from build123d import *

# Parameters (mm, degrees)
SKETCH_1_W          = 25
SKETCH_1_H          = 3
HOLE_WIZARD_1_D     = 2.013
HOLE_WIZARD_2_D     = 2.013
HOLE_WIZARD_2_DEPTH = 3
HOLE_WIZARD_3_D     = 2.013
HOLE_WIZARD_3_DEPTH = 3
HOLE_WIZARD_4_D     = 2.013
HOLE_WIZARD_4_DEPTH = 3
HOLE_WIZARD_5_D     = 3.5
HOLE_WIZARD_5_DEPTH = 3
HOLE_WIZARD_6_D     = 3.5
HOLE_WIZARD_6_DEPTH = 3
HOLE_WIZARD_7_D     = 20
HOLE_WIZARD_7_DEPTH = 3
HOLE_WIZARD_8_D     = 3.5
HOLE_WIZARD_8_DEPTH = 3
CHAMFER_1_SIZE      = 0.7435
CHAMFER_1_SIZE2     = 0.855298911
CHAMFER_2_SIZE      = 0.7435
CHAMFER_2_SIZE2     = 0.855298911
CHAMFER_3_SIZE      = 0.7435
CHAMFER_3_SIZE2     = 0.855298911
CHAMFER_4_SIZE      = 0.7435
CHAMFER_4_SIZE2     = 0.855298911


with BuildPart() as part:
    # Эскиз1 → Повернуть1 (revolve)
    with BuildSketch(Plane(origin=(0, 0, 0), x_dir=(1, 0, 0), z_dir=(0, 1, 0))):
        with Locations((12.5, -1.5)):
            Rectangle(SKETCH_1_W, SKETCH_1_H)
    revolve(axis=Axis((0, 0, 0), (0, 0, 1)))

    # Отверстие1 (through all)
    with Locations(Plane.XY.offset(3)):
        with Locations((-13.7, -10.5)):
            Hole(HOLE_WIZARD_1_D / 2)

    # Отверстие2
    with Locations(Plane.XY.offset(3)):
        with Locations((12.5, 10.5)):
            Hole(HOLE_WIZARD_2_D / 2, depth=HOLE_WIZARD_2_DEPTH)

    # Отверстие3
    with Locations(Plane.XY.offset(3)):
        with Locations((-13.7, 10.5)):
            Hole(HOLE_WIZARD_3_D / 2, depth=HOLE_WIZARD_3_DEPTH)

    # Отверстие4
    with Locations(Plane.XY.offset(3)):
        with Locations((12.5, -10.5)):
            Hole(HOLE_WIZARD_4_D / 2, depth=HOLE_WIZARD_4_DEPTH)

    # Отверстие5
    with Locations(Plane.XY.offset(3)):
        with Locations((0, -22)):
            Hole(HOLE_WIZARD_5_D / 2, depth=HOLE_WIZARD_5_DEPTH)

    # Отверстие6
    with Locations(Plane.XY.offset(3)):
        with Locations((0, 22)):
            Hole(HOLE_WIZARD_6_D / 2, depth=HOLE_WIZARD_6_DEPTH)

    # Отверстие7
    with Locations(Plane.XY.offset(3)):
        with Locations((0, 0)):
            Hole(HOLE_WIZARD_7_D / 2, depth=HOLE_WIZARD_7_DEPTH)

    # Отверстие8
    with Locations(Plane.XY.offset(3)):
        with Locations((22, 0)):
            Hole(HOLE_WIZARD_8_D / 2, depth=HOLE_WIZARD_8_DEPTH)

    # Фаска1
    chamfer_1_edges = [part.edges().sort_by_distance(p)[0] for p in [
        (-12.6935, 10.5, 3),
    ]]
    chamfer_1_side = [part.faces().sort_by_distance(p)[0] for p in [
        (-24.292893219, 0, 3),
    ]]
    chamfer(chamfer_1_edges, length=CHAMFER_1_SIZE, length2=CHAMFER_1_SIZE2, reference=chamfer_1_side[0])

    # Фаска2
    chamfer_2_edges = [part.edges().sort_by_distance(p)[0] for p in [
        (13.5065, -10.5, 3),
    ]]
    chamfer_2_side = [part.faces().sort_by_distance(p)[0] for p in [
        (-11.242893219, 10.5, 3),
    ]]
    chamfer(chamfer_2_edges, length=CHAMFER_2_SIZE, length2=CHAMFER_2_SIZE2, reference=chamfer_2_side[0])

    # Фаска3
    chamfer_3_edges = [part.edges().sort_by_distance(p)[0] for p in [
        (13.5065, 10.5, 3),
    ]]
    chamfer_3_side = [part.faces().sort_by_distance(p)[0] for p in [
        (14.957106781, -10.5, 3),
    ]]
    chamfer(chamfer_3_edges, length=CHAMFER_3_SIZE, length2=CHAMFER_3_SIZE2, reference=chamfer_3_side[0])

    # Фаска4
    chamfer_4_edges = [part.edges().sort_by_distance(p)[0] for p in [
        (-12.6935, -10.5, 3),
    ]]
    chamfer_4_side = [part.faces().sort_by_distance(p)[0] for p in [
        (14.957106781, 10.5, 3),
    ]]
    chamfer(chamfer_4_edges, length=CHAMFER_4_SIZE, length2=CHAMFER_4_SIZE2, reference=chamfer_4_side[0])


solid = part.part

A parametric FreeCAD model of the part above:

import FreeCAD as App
import Part
import Sketcher

V = App.Vector
Q = App.Units.Quantity


def edges_at(feature, points):
    """Names of the edges that pass closest to the given points."""
    edges = feature.Shape.Edges
    near = lambda p: min(range(len(edges)), key=lambda i: edges[i].distToShape(Part.Vertex(*p))[0])
    return sorted({f"Edge{near(p) + 1}" for p in points})

doc = App.newDocument("Part")
body = doc.addObject("PartDesign::Body", "Body")

sketch1 = body.newObject("Sketcher::SketchObject", "Sketch")
sketch1.AttachmentSupport = (doc.getObject("XZ_Plane"), [""])
sketch1.MapMode = "FlatFace"
sketch1.addGeometry(Part.LineSegment(V(0, 0, 0), V(0, 3, 0)), False)
sketch1.addGeometry(Part.LineSegment(V(0, 3, 0), V(25, 3, 0)), False)
sketch1.addGeometry(Part.LineSegment(V(25, 3, 0), V(25, 0, 0)), False)
sketch1.addGeometry(Part.LineSegment(V(25, 0, 0), V(0, 0, 0)), False)
sketch1.addConstraint(Sketcher.Constraint("Coincident", 0, 2, 1, 1))
sketch1.addConstraint(Sketcher.Constraint("Coincident", 1, 2, 2, 1))
sketch1.addConstraint(Sketcher.Constraint("Coincident", 2, 2, 3, 1))
sketch1.addConstraint(Sketcher.Constraint("Coincident", 3, 2, 0, 1))
sketch1.addConstraint(Sketcher.Constraint("Vertical", 0))
sketch1.addConstraint(Sketcher.Constraint("Horizontal", 1))
sketch1.addConstraint(Sketcher.Constraint("Vertical", 2))
sketch1.addConstraint(Sketcher.Constraint("Horizontal", 3))
sketch1.addConstraint(Sketcher.Constraint("Coincident", 3, 2, -1, 1))
sketch1.addConstraint(Sketcher.Constraint("DistanceX", 1, 1, 1, 2, Q("25 mm")))
sketch1.addConstraint(Sketcher.Constraint("DistanceY", 0, 1, 0, 2, Q("3 mm")))
revolution = body.newObject("PartDesign::Revolution", "Revolution")
revolution.Profile = sketch1
revolution.ReferenceAxis = (sketch1, ["V_Axis"])
revolution.Angle = 360

sketch2 = body.newObject("Sketcher::SketchObject", "Sketch001")
sketch2.AttachmentSupport = (doc.getObject("XY_Plane"), [""])
sketch2.MapMode = "FlatFace"
sketch2.AttachmentOffset = App.Placement(V(0, 0, 3), App.Rotation())
sketch2.addGeometry(Part.Circle(V(-13.7, -10.5, 0), V(0, 0, 1), 1), False)
sketch2.addConstraint(Sketcher.Constraint("Diameter", 0, Q("2.013 mm")))
sketch2.addConstraint(Sketcher.Constraint("DistanceX", 0, 3, -1, 1, Q("13.7 mm")))
sketch2.addConstraint(Sketcher.Constraint("DistanceY", 0, 3, -1, 1, Q("10.5 mm")))
doc.recompute()
hole = body.newObject("PartDesign::Hole", "Hole")
hole.Profile = sketch2
hole.ThreadType = "None"
hole.Diameter = 2.013
hole.DepthType = "ThroughAll"

sketch3 = body.newObject("Sketcher::SketchObject", "Sketch002")
sketch3.AttachmentSupport = (doc.getObject("XY_Plane"), [""])
sketch3.MapMode = "FlatFace"
sketch3.AttachmentOffset = App.Placement(V(0, 0, 3), App.Rotation())
sketch3.addGeometry(Part.Circle(V(12.5, 10.5, 0), V(0, 0, 1), 1), False)
sketch3.addConstraint(Sketcher.Constraint("Diameter", 0, Q("2.013 mm")))
sketch3.addConstraint(Sketcher.Constraint("DistanceX", -1, 1, 0, 3, Q("12.5 mm")))
sketch3.addConstraint(Sketcher.Constraint("DistanceY", -1, 1, 0, 3, Q("10.5 mm")))
doc.recompute()
hole2 = body.newObject("PartDesign::Hole", "Hole001")
hole2.Profile = sketch3
hole2.ThreadType = "None"
hole2.Diameter = 2.013
hole2.DepthType = "Dimension"
hole2.Depth = 3
hole2.DrillPoint = "Flat"

sketch4 = body.newObject("Sketcher::SketchObject", "Sketch003")
sketch4.AttachmentSupport = (doc.getObject("XY_Plane"), [""])
sketch4.MapMode = "FlatFace"
sketch4.AttachmentOffset = App.Placement(V(0, 0, 3), App.Rotation())
sketch4.addGeometry(Part.Circle(V(-13.7, 10.5, 0), V(0, 0, 1), 1), False)
sketch4.addConstraint(Sketcher.Constraint("Diameter", 0, Q("2.013 mm")))
sketch4.addConstraint(Sketcher.Constraint("DistanceX", 0, 3, -1, 1, Q("13.7 mm")))
sketch4.addConstraint(Sketcher.Constraint("DistanceY", -1, 1, 0, 3, Q("10.5 mm")))
doc.recompute()
hole3 = body.newObject("PartDesign::Hole", "Hole002")
hole3.Profile = sketch4
hole3.ThreadType = "None"
hole3.Diameter = 2.013
hole3.DepthType = "Dimension"
hole3.Depth = 3
hole3.DrillPoint = "Flat"

sketch5 = body.newObject("Sketcher::SketchObject", "Sketch004")
sketch5.AttachmentSupport = (doc.getObject("XY_Plane"), [""])
sketch5.MapMode = "FlatFace"
sketch5.AttachmentOffset = App.Placement(V(0, 0, 3), App.Rotation())
sketch5.addGeometry(Part.Circle(V(12.5, -10.5, 0), V(0, 0, 1), 1), False)
sketch5.addConstraint(Sketcher.Constraint("Diameter", 0, Q("2.013 mm")))
sketch5.addConstraint(Sketcher.Constraint("DistanceX", -1, 1, 0, 3, Q("12.5 mm")))
sketch5.addConstraint(Sketcher.Constraint("DistanceY", 0, 3, -1, 1, Q("10.5 mm")))
doc.recompute()
hole4 = body.newObject("PartDesign::Hole", "Hole003")
hole4.Profile = sketch5
hole4.ThreadType = "None"
hole4.Diameter = 2.013
hole4.DepthType = "Dimension"
hole4.Depth = 3
hole4.DrillPoint = "Flat"

sketch6 = body.newObject("Sketcher::SketchObject", "Sketch005")
sketch6.AttachmentSupport = (doc.getObject("XY_Plane"), [""])
sketch6.MapMode = "FlatFace"
sketch6.AttachmentOffset = App.Placement(V(0, 0, 3), App.Rotation())
sketch6.addGeometry(Part.Circle(V(0, -22, 0), V(0, 0, 1), 1.8), False)
sketch6.addConstraint(Sketcher.Constraint("PointOnObject", 0, 3, -2))
sketch6.addConstraint(Sketcher.Constraint("Diameter", 0, Q("3.5 mm")))
sketch6.addConstraint(Sketcher.Constraint("DistanceY", 0, 3, -1, 1, Q("22 mm")))
doc.recompute()
hole5 = body.newObject("PartDesign::Hole", "Hole004")
hole5.Profile = sketch6
hole5.ThreadType = "None"
hole5.Diameter = 3.5
hole5.DepthType = "Dimension"
hole5.Depth = 3
hole5.DrillPoint = "Flat"

sketch7 = body.newObject("Sketcher::SketchObject", "Sketch006")
sketch7.AttachmentSupport = (doc.getObject("XY_Plane"), [""])
sketch7.MapMode = "FlatFace"
sketch7.AttachmentOffset = App.Placement(V(0, 0, 3), App.Rotation())
sketch7.addGeometry(Part.Circle(V(0, 22, 0), V(0, 0, 1), 1.8), False)
sketch7.addConstraint(Sketcher.Constraint("PointOnObject", 0, 3, -2))
sketch7.addConstraint(Sketcher.Constraint("Diameter", 0, Q("3.5 mm")))
sketch7.addConstraint(Sketcher.Constraint("DistanceY", -1, 1, 0, 3, Q("22 mm")))
doc.recompute()
hole6 = body.newObject("PartDesign::Hole", "Hole005")
hole6.Profile = sketch7
hole6.ThreadType = "None"
hole6.Diameter = 3.5
hole6.DepthType = "Dimension"
hole6.Depth = 3
hole6.DrillPoint = "Flat"

sketch8 = body.newObject("Sketcher::SketchObject", "Sketch007")
sketch8.AttachmentSupport = (doc.getObject("XY_Plane"), [""])
sketch8.MapMode = "FlatFace"
sketch8.AttachmentOffset = App.Placement(V(0, 0, 3), App.Rotation())
sketch8.addGeometry(Part.Circle(V(0, 0, 0), V(0, 0, 1), 10), False)
sketch8.addConstraint(Sketcher.Constraint("Coincident", 0, 3, -1, 1))
sketch8.addConstraint(Sketcher.Constraint("Diameter", 0, Q("20 mm")))
doc.recompute()
hole7 = body.newObject("PartDesign::Hole", "Hole006")
hole7.Profile = sketch8
hole7.ThreadType = "None"
hole7.Diameter = 20
hole7.DepthType = "Dimension"
hole7.Depth = 3
hole7.DrillPoint = "Flat"

sketch9 = body.newObject("Sketcher::SketchObject", "Sketch008")
sketch9.AttachmentSupport = (doc.getObject("XY_Plane"), [""])
sketch9.MapMode = "FlatFace"
sketch9.AttachmentOffset = App.Placement(V(0, 0, 3), App.Rotation())
sketch9.addGeometry(Part.Circle(V(22, 0, 0), V(0, 0, 1), 1.8), False)
sketch9.addConstraint(Sketcher.Constraint("PointOnObject", 0, 3, -1))
sketch9.addConstraint(Sketcher.Constraint("Diameter", 0, Q("3.5 mm")))
sketch9.addConstraint(Sketcher.Constraint("DistanceX", -1, 1, 0, 3, Q("22 mm")))
doc.recompute()
hole8 = body.newObject("PartDesign::Hole", "Hole007")
hole8.Profile = sketch9
hole8.ThreadType = "None"
hole8.Diameter = 3.5
hole8.DepthType = "Dimension"
hole8.Depth = 3
hole8.DrillPoint = "Flat"
doc.recompute()

chamfer = body.newObject("PartDesign::Chamfer", "Chamfer")
chamfer.Base = (hole8, edges_at(hole8, [(-12.694, 10.5, 3)]))
chamfer.ChamferType = "Two distances"
chamfer.Size = 0.7435
chamfer.Size2 = 0.855299
doc.recompute()

chamfer2 = body.newObject("PartDesign::Chamfer", "Chamfer001")
chamfer2.Base = (chamfer, edges_at(chamfer, [(13.507, -10.5, 3)]))
chamfer2.ChamferType = "Two distances"
chamfer2.Size = 0.7435
chamfer2.Size2 = 0.855299
doc.recompute()

chamfer3 = body.newObject("PartDesign::Chamfer", "Chamfer002")
chamfer3.Base = (chamfer2, edges_at(chamfer2, [(13.507, 10.5, 3)]))
chamfer3.ChamferType = "Two distances"
chamfer3.Size = 0.7435
chamfer3.Size2 = 0.855299
doc.recompute()

chamfer4 = body.newObject("PartDesign::Chamfer", "Chamfer003")
chamfer4.Base = (chamfer3, edges_at(chamfer3, [(-12.694, -10.5, 3)]))
chamfer4.ChamferType = "Two distances"
chamfer4.Size = 0.7435
chamfer4.Size2 = 0.855299

doc.recompute()
